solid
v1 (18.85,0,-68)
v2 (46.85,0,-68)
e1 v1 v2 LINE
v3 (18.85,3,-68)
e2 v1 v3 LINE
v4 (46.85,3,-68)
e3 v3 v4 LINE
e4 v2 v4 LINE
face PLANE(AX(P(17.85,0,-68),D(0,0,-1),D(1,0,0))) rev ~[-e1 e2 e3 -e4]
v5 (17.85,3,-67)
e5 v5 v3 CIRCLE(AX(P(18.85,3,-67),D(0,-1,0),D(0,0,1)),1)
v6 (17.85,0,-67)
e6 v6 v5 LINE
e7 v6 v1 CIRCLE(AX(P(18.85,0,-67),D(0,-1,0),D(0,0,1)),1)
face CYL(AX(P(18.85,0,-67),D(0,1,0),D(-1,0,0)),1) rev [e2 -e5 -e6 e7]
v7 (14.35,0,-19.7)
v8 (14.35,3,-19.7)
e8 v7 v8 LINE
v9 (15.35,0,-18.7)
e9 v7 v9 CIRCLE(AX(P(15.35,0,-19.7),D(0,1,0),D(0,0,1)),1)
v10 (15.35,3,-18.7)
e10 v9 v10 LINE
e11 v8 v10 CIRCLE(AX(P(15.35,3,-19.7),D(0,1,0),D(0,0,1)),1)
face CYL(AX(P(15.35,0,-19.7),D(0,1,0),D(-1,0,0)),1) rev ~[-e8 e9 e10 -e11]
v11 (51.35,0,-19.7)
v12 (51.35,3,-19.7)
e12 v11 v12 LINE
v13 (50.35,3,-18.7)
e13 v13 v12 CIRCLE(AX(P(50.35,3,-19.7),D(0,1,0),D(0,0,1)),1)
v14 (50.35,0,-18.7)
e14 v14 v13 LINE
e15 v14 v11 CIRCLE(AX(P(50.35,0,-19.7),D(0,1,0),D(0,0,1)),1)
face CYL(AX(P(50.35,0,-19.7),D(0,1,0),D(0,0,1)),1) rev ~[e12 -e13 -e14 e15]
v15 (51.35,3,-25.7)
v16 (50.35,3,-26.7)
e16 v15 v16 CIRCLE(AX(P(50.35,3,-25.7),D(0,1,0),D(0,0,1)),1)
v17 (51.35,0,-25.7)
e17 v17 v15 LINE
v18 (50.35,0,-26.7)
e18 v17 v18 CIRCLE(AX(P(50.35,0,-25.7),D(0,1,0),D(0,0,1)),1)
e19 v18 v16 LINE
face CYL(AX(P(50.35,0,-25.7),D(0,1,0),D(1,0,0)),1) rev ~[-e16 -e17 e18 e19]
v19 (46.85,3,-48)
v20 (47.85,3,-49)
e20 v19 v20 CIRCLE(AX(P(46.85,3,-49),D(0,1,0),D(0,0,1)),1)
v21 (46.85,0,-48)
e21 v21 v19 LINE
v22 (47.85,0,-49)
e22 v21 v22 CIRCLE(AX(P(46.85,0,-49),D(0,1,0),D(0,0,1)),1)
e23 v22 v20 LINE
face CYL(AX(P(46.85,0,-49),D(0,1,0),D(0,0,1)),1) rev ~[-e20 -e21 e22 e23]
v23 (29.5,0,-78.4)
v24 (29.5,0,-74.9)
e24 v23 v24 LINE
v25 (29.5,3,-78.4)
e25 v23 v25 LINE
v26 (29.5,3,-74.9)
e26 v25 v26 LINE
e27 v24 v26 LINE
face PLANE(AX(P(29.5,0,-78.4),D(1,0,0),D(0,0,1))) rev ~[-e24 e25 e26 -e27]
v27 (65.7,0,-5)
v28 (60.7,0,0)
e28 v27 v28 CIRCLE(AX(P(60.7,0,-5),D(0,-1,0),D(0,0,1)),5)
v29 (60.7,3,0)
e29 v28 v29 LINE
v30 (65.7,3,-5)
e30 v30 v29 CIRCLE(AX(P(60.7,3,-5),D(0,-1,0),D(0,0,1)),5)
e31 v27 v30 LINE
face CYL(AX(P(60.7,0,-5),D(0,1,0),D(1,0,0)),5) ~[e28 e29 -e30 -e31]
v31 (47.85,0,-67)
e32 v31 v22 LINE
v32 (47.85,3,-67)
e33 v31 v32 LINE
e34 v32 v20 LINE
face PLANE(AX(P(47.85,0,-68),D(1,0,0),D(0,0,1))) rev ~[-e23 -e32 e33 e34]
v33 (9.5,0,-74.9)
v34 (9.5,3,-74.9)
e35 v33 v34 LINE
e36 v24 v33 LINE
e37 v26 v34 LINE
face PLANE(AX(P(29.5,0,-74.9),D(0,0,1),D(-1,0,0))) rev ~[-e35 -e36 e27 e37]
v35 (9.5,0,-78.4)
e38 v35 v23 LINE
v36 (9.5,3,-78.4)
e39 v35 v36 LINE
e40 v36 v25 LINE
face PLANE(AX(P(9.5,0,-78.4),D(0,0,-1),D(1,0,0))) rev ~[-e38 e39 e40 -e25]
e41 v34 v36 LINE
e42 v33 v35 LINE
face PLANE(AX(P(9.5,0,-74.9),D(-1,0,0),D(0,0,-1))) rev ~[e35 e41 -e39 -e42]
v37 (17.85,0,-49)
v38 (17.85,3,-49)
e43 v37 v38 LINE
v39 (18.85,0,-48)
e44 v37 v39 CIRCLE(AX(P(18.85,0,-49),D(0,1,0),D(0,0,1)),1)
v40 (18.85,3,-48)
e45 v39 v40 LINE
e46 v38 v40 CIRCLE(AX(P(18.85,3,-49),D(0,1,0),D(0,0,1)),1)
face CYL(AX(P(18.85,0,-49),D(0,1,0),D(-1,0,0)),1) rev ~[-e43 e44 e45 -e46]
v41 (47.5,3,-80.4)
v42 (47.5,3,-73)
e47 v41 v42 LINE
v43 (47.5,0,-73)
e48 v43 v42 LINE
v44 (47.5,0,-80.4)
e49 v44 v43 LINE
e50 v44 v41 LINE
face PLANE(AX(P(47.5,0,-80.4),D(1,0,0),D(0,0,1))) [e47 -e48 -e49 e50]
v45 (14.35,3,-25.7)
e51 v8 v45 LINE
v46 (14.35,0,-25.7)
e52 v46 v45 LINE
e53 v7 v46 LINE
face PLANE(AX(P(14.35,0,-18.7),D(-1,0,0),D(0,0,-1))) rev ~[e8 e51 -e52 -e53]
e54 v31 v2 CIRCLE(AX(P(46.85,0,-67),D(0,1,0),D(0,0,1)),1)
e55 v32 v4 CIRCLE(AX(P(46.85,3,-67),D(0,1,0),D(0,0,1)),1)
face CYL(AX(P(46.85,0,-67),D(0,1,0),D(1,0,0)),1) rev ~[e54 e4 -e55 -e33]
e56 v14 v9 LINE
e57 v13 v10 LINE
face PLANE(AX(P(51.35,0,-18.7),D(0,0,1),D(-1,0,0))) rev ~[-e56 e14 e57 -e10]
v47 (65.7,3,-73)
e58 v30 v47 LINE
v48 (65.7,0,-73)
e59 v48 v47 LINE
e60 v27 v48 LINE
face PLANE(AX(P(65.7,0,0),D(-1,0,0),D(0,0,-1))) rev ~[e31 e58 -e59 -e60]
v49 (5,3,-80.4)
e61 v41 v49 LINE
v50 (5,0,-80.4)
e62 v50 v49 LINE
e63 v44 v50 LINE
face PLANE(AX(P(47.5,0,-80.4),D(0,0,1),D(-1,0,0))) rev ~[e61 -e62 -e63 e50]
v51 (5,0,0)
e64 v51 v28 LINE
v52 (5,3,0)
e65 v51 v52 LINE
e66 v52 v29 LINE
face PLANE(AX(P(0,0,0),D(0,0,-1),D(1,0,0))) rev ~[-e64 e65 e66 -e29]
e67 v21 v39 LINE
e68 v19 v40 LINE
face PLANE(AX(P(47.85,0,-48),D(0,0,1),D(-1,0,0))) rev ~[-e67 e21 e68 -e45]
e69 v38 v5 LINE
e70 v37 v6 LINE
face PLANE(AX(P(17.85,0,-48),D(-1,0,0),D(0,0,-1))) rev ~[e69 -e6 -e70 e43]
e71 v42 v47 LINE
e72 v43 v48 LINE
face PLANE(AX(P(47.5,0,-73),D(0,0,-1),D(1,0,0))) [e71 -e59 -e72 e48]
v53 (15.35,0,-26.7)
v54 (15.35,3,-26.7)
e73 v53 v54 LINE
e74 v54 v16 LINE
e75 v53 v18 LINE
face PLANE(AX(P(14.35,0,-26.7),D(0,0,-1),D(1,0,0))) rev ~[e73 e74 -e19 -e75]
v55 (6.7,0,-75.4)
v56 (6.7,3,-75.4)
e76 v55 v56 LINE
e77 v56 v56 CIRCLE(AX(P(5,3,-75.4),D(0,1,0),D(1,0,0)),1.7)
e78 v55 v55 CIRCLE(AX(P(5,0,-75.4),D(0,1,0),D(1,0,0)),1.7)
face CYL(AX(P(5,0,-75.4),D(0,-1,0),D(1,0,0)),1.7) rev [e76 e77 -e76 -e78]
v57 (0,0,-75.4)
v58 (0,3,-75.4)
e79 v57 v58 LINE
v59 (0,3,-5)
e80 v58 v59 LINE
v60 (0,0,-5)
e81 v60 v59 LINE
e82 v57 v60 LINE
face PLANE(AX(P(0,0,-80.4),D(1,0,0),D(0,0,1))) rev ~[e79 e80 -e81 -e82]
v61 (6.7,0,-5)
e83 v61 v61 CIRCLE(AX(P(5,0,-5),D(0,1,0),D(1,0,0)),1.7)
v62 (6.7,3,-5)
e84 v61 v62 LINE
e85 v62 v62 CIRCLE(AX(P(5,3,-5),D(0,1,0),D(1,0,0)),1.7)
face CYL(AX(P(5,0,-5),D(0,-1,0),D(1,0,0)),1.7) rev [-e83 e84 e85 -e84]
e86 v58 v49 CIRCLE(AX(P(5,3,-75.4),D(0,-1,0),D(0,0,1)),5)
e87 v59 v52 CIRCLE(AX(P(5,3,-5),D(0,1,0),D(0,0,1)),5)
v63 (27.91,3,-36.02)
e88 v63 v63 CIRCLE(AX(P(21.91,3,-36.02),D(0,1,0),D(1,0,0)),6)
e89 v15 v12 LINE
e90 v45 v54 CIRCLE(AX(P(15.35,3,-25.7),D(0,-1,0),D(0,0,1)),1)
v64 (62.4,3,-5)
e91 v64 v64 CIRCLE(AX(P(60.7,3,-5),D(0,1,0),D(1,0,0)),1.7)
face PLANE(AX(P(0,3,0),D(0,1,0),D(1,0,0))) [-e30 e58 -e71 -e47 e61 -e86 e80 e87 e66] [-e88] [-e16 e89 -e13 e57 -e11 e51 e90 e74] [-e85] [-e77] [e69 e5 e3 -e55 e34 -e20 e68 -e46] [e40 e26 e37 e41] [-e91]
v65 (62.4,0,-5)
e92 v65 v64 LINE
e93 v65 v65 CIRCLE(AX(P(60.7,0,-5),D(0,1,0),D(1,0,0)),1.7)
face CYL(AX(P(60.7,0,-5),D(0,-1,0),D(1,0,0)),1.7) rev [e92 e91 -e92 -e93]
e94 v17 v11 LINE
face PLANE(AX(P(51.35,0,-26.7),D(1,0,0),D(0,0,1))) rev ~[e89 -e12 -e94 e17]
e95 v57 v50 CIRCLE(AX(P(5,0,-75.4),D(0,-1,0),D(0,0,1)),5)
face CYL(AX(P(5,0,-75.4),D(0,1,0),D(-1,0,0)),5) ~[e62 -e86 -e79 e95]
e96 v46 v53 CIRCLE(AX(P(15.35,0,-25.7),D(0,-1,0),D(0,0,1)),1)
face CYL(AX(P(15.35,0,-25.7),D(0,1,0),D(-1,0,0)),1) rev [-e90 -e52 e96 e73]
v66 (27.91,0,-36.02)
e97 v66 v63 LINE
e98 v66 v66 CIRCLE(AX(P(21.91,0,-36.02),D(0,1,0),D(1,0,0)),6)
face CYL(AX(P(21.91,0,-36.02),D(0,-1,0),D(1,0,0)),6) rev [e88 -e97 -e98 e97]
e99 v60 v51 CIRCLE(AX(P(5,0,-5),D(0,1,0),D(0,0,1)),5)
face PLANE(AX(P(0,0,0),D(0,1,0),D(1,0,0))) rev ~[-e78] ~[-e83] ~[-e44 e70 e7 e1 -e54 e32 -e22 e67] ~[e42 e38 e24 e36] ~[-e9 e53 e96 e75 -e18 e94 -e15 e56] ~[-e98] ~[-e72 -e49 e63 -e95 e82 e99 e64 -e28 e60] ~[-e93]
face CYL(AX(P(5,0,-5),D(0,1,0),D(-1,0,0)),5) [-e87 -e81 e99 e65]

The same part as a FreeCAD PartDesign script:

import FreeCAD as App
import Part
import Sketcher


def edges_at(feature, points):
    """Names of the edges that pass closest to the given points."""
    edges = feature.Shape.Edges
    near = lambda p: min(range(len(edges)), key=lambda i: edges[i].distToShape(Part.Vertex(*p))[0])
    return sorted({f"Edge{near(p) + 1}" for p in points})


def add_polygon(sketch, points):
    """Adds a closed chain of lines whose ends are joined by coincident constraints."""
    first, n = sketch.GeometryCount, len(points)
    for a, b in zip(points, points[1:] + points[:1]):
        sketch.addGeometry(Part.LineSegment(App.Vector(*a, 0), App.Vector(*b, 0)), False)
    for i in range(n):
        sketch.addConstraint(Sketcher.Constraint("Coincident", first + i, 2, first + (i + 1) % n, 1))

doc = App.newDocument("Part")
body = doc.addObject("PartDesign::Body", "Body")

sketch1 = body.newObject("Sketcher::SketchObject", "Sketch")
sketch1.AttachmentSupport = (doc.getObject("XZ_Plane"), [""])
sketch1.MapMode = "FlatFace"
add_polygon(sketch1, [(0, -80.4), (0, 0), (65.7, 0), (65.7, -73), (47.5, -73), (47.5, -80.4)])
sketch1.addGeometry(Part.Circle(App.Vector(5, -5, 0), App.Vector(0, 0, 1), 1.7), False)
sketch1.addGeometry(Part.Circle(App.Vector(21.9, -36, 0), App.Vector(0, 0, 1), 6), False)
sketch1.addGeometry(Part.Circle(App.Vector(60.7, -5, 0), App.Vector(0, 0, 1), 1.7), False)
add_polygon(sketch1, [(14.3, -18.7), (14.3, -26.7), (51.4, -26.7), (51.4, -18.7)])
sketch1.addGeometry(Part.Circle(App.Vector(5, -75.4, 0), App.Vector(0, 0, 1), 1.7), False)
add_polygon(sketch1, [(9.5, -74.9), (9.5, -78.4), (29.5, -78.4), (29.5, -74.9)])
add_polygon(sketch1, [(17.9, -48), (17.9, -68), (47.9, -68), (47.9, -48)])
sketch1.addConstraint(Sketcher.Constraint("Vertical", 0))
sketch1.addConstraint(Sketcher.Constraint("Horizontal", 1))
sketch1.addConstraint(Sketcher.Constraint("Vertical", 2))
sketch1.addConstraint(Sketcher.Constraint("Horizontal", 3))
sketch1.addConstraint(Sketcher.Constraint("Vertical", 4))
sketch1.addConstraint(Sketcher.Constraint("Horizontal", 5))
sketch1.addConstraint(Sketcher.Constraint("Vertical", 9))
sketch1.addConstraint(Sketcher.Constraint("Horizontal", 10))
sketch1.addConstraint(Sketcher.Constraint("Vertical", 11))
sketch1.addConstraint(Sketcher.Constraint("Horizontal", 12))
sketch1.addConstraint(Sketcher.Constraint("Vertical", 14))
sketch1.addConstraint(Sketcher.Constraint("Horizontal", 15))
sketch1.addConstraint(Sketcher.Constraint("Vertical", 16))
sketch1.addConstraint(Sketcher.Constraint("Horizontal", 17))
sketch1.addConstraint(Sketcher.Constraint("Vertical", 18))
sketch1.addConstraint(Sketcher.Constraint("Horizontal", 19))
sketch1.addConstraint(Sketcher.Constraint("Vertical", 20))
sketch1.addConstraint(Sketcher.Constraint("Horizontal", 21))
sketch1.addConstraint(Sketcher.Constraint("Coincident", 0, 2, -1, 1))
sketch1.addConstraint(Sketcher.Constraint("Equal", 6, 8))
sketch1.addConstraint(Sketcher.Constraint("Equal", 8, 13))
sketch1.addConstraint(Sketcher.Constraint("Horizontal", 6, 3, 8, 3))
sketch1.addConstraint(Sketcher.Constraint("Vertical", 6, 3, 13, 3))
sketch1.addConstraint(Sketcher.Constraint("Equal", 17, 18))
sketch1.addConstraint(Sketcher.Constraint("Diameter", 7, 12.0))
sketch1.addConstraint(Sketcher.Constraint("Diameter", 6, 3.4))
sketch1.addConstraint(Sketcher.Constraint("DistanceX", 10, 1, 10, 2, 37.0))
sketch1.addConstraint(Sketcher.Constraint("DistanceX", 15, 1, 15, 2, 20.0))
sketch1.addConstraint(Sketcher.Constraint("DistanceX", 19, 1, 19, 2, 30.0))
sketch1.addConstraint(Sketcher.Constraint("DistanceY", 9, 2, 9, 1, 8.0))
sketch1.addConstraint(Sketcher.Constraint("DistanceX", 1, 1, 1, 2, 65.7))
sketch1.addConstraint(Sketcher.Constraint("DistanceX", 3, 2, 3, 1, 18.2))
sketch1.addConstraint(Sketcher.Constraint("DistanceY", 0, 1, 0, 2, 80.4))
sketch1.addConstraint(Sketcher.Constraint("DistanceY", 4, 2, 4, 1, 7.4))
sketch1.addConstraint(Sketcher.Constraint("DistanceY", 14, 2, 14, 1, 3.5))
sketch1.addConstraint(Sketcher.Constraint("DistanceX", -1, 1, 6, 3, 5.0))
sketch1.addConstraint(Sketcher.Constraint("DistanceY", 6, 3, -1, 1, 5.0))
sketch1.addConstraint(Sketcher.Constraint("DistanceX", 8, 3, 1, 2, 5.0))
sketch1.addConstraint(Sketcher.Constraint("DistanceY", 4, 2, 13, 3, 5.0))
sketch1.addConstraint(Sketcher.Constraint("DistanceY", 5, 2, 14, 2, 2.0))
sketch1.addConstraint(Sketcher.Constraint("DistanceY", 3, 2, 19, 2, 5.0))
sketch1.addConstraint(Sketcher.Constraint("DistanceX", -1, 1, 14, 2, 9.5))
sketch1.addConstraint(Sketcher.Constraint("DistanceX", 20, 2, 10, 2, 3.5))
sketch1.addConstraint(Sketcher.Constraint("DistanceX", -1, 1, 18, 2, 17.85))
sketch1.addConstraint(Sketcher.Constraint("DistanceY", 7, 3, 9, 2, 9.32))
sketch1.addConstraint(Sketcher.Constraint("DistanceY", 9, 2, -1, 1, 26.7))
sketch1.addConstraint(Sketcher.Constraint("DistanceX", -1, 1, 7, 3, 21.91))
pad1 = body.newObject("PartDesign::Pad", "Pad")
pad1.Profile = sketch1
pad1.Length = 3
pad1.Reversed = True
doc.recompute()

fillet = body.newObject("PartDesign::Fillet", "Fillet")
fillet.Base = (pad1, edges_at(pad1, [(65.7, 1.5, 0), (0, 1.5, 0), (0, 1.5, -80.4)]))
fillet.Radius = 5
doc.recompute()

fillet2 = body.newObject("PartDesign::Fillet", "Fillet001")
fillet2.Base = (fillet, edges_at(fillet, [
    (17.85, 1.5, -68),
    (14.35, 1.5, -26.7),
    (47.85, 1.5, -68),
    (51.35, 1.5, -26.7),
    (51.35, 1.5, -18.7),
    (47.85, 1.5, -48),
    (17.85, 1.5, -48),
    (14.35, 1.5, -18.7),
]))
fillet2.Radius = 1

doc.recompute()
